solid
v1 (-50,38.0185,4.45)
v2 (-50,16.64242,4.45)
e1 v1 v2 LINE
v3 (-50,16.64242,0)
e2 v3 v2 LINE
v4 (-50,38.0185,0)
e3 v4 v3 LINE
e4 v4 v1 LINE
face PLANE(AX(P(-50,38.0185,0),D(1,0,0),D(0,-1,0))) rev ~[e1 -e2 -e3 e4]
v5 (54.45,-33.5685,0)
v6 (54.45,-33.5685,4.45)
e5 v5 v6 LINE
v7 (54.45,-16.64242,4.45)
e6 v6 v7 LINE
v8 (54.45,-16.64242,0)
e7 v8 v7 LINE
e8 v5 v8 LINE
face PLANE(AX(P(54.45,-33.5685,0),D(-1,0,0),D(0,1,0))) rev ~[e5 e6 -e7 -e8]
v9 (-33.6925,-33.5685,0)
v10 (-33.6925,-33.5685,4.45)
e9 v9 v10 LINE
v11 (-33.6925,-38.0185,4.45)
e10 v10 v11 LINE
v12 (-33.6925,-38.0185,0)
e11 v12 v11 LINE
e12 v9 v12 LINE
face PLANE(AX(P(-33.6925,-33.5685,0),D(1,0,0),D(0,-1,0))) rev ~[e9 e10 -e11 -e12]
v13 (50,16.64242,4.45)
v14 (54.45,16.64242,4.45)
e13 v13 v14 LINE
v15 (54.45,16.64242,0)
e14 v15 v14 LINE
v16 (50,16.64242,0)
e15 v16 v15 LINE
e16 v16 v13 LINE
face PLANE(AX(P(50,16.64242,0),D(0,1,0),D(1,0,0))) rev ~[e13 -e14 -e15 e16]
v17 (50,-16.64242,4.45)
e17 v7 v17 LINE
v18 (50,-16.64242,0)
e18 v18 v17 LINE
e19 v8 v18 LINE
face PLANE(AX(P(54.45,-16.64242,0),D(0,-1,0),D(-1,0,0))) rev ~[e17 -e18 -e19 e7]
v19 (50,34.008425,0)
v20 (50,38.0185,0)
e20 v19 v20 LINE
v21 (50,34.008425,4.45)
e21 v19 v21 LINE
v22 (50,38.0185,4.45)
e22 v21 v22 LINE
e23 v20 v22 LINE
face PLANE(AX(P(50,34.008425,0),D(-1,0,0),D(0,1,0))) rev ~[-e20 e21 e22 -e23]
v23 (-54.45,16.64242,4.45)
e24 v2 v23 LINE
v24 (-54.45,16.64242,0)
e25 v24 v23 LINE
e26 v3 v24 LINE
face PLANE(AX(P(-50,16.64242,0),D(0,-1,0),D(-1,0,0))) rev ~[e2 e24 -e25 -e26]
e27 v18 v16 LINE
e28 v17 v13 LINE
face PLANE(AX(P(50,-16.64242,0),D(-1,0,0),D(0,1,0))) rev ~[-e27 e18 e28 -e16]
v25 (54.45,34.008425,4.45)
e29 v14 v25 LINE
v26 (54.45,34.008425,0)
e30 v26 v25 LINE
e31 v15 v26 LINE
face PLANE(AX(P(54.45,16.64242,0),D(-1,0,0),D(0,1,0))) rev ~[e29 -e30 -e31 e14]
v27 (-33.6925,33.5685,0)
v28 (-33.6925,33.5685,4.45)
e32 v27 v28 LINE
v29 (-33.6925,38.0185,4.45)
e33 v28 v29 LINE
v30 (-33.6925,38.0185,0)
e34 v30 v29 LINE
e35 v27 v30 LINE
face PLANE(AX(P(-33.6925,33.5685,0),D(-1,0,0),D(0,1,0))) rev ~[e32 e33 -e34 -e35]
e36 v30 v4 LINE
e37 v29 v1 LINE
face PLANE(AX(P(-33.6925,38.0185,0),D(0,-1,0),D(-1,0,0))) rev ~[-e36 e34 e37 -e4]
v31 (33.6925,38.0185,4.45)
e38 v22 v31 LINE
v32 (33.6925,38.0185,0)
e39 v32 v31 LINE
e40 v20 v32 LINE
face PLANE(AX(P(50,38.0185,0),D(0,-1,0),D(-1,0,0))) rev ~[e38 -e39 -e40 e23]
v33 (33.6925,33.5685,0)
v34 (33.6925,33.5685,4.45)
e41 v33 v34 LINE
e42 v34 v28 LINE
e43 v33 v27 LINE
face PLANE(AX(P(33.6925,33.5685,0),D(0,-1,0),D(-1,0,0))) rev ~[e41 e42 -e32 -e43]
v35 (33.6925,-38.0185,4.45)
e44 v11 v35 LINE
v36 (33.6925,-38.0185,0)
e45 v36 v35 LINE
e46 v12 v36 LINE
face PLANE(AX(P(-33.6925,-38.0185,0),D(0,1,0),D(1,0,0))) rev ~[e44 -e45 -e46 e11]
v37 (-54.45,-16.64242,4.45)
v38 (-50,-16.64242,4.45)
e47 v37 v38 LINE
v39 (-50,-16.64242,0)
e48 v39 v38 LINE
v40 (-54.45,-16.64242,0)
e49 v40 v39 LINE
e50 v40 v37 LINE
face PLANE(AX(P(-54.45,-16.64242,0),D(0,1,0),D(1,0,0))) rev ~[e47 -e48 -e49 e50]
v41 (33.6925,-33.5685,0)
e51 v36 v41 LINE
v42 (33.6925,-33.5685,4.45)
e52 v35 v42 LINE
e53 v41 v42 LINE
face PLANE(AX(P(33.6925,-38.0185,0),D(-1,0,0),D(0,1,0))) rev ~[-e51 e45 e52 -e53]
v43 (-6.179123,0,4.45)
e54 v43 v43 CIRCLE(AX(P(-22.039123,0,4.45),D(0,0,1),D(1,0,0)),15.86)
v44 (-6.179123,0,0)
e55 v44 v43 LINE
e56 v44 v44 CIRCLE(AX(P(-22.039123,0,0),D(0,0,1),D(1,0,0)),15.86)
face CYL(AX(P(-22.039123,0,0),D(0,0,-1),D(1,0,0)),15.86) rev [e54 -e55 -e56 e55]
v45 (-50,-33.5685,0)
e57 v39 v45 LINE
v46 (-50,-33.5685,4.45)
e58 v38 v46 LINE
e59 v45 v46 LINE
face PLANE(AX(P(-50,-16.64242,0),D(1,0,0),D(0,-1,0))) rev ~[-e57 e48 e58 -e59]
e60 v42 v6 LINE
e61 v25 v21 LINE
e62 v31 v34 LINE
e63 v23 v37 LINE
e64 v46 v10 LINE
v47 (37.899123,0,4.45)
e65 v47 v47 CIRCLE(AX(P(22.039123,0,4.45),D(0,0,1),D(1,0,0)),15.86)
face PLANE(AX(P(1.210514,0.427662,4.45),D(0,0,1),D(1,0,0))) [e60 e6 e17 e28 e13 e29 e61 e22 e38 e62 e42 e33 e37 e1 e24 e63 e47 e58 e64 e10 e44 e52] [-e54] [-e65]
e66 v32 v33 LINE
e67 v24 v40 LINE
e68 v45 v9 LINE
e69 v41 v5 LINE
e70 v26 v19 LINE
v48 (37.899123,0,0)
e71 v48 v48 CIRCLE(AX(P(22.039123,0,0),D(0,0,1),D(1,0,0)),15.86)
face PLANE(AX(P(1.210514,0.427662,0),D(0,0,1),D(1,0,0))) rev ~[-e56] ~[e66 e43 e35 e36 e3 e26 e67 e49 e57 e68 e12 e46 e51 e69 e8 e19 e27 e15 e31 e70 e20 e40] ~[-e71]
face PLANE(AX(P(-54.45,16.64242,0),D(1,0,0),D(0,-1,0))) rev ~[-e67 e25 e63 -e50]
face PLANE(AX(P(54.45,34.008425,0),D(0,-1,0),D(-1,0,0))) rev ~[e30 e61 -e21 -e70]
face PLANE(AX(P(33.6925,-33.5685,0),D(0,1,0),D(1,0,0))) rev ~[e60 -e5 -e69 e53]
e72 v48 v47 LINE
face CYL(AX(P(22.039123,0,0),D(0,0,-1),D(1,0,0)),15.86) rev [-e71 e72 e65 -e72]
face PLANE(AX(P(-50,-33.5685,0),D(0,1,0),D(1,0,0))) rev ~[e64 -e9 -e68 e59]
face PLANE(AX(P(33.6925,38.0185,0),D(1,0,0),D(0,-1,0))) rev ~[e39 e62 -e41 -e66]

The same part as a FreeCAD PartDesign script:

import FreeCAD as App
import Part
import Sketcher


def add_polygon(sketch, points):
    """Adds a closed chain of lines whose ends are joined by coincident constraints."""
    first, n = sketch.GeometryCount, len(points)
    for a, b in zip(points, points[1:] + points[:1]):
        sketch.addGeometry(Part.LineSegment(App.Vector(*a, 0), App.Vector(*b, 0)), False)
    for i in range(n):
        sketch.addConstraint(Sketcher.Constraint("Coincident", first + i, 2, first + (i + 1) % n, 1))

doc = App.newDocument("Part")
body = doc.addObject("PartDesign::Body", "Body")

# Sketch on XY plane
sketch1 = body.newObject("Sketcher::SketchObject", "Sketch")
sketch1.AttachmentSupport = (doc.getObject("XY_Plane"), [""])
sketch1.MapMode = "FlatFace"
add_polygon(sketch1, [(33.7, -33.6), (54.5, -33.6), (54.5, -16.6), (50, -16.6), (50, 16.6), (54.5, 16.6), (54.5, 34), (50, 34), (50, 38), (33.7, 38), (33.7, 33.6), (-33.7, 33.6), (-33.7, 38), (-50, 38), (-50, 16.6), (-54.5, 16.6), (-54.5, -16.6), (-50, -16.6), (-50, -33.6), (-33.7, -33.6), (-33.7, -38), (33.7, -38)])  # lines 0-21
sketch1.addGeometry(Part.Circle(App.Vector(-22, 0, 0), App.Vector(0, 0, 1), 15.9), False)  # 22
sketch1.addGeometry(Part.Circle(App.Vector(22, 0, 0), App.Vector(0, 0, 1), 15.9), False)  # 23
sketch1.addConstraint([
    Sketcher.Constraint("Horizontal", 0),
    Sketcher.Constraint("Vertical", 1),
    Sketcher.Constraint("Horizontal", 2),
    Sketcher.Constraint("Vertical", 3),
    Sketcher.Constraint("Horizontal", 4),
    Sketcher.Constraint("Vertical", 5),
    Sketcher.Constraint("Horizontal", 6),
    Sketcher.Constraint("Vertical", 7),
    Sketcher.Constraint("Horizontal", 8),
    Sketcher.Constraint("Vertical", 9),
    Sketcher.Constraint("Horizontal", 10),
    Sketcher.Constraint("Vertical", 11),
    Sketcher.Constraint("Horizontal", 12),
    Sketcher.Constraint("Vertical", 13),
    Sketcher.Constraint("Horizontal", 14),
    Sketcher.Constraint("Vertical", 15),
    Sketcher.Constraint("Horizontal", 16),
    Sketcher.Constraint("Vertical", 17),
    Sketcher.Constraint("Horizontal", 18),
    Sketcher.Constraint("Vertical", 19),
    Sketcher.Constraint("Horizontal", 20),
    Sketcher.Constraint("Vertical", 21),
    Sketcher.Constraint("Equal", 22, 23),
    Sketcher.Constraint("Symmetric", 22, 3, 23, 3, -1, 1),
    Sketcher.Constraint("Symmetric", 2, 2, 13, 2, -1, 1),
    Sketcher.Constraint("Symmetric", 4, 2, 15, 2, -1, 1),
    Sketcher.Constraint("Symmetric", 9, 2, 18, 2, -1, 1),
    Sketcher.Constraint("Symmetric", 11, 2, 20, 2, -1, 1),
    Sketcher.Constraint("Symmetric", 8, 2, 11, 2, -2),
    Sketcher.Constraint("Symmetric", 1, 2, 15, 2, -2),
    Sketcher.Constraint("PointOnObject", 22, 3, -1),
    Sketcher.Constraint("Horizontal", 0, 2, 17, 2),
    Sketcher.Constraint("Vertical", 3, 2, 6, 2),
    Sketcher.Constraint("Vertical", 13, 2, 16, 2),
    Sketcher.Constraint("Equal", 16, 9),
    Sketcher.Constraint("Diameter", 22, 31.72),
    Sketcher.Constraint("DistanceX", -1, 1, 2, 2, 50.0),
    Sketcher.Constraint("DistanceX", 2, 2, 2, 1, 4.45),
    Sketcher.Constraint("DistanceX", 10, 2, 10, 1, 67.385),
    Sketcher.Constraint("DistanceY", 1, 1, 1, 2, 16.92608),
    Sketcher.Constraint("DistanceY", 3, 1, 3, 2, 33.28484),
    Sketcher.Constraint("DistanceY", 5, 1, 5, 2, 17.366005),
    Sketcher.Constraint("DistanceX", 22, 3, -1, 1, 22.039123),
])
pad1 = body.newObject("PartDesign::Pad", "Pad")
pad1.Profile = sketch1
pad1.Length = 4.45

doc.recompute()
